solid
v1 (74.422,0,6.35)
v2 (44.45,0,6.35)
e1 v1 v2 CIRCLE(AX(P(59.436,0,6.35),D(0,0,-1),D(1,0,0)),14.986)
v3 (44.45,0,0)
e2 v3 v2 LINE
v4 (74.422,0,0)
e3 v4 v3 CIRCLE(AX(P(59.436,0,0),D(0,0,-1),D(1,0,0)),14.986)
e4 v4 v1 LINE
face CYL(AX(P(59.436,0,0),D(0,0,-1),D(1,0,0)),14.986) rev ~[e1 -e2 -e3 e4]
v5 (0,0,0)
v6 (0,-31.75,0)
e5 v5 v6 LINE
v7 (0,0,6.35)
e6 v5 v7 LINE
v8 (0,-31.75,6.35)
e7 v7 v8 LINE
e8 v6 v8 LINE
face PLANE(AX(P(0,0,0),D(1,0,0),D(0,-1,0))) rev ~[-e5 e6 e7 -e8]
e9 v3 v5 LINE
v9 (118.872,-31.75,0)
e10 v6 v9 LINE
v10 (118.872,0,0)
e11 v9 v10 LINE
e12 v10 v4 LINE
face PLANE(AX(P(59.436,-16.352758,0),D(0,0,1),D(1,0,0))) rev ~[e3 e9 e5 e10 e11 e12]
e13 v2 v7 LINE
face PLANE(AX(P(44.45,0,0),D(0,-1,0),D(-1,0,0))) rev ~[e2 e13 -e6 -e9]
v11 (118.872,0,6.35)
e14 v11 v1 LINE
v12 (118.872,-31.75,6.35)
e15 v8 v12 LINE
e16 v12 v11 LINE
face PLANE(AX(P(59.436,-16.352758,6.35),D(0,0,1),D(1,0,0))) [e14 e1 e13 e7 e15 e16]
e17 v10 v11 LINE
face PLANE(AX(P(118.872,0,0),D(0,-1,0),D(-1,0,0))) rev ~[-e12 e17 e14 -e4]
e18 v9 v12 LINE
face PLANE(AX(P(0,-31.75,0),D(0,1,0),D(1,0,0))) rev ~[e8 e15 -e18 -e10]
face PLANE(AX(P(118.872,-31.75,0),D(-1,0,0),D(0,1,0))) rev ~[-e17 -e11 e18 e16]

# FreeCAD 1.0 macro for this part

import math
import FreeCAD as App
import Part
import Sketcher
Q = App.Units.Quantity

doc = App.newDocument("Part")
body = doc.addObject("PartDesign::Body", "Body")

# Sketch on XY plane
sketch1 = body.newObject("Sketcher::SketchObject", "Sketch")
sketch1.AttachmentSupport = (doc.getObject("XY_Plane"), [""])
sketch1.MapMode = "FlatFace"
sketch1.addGeometry(Part.LineSegment(App.Vector(44.45, 0, 0), App.Vector(0, 0, 0)), False)
sketch1.addGeometry(Part.LineSegment(App.Vector(0, 0, 0), App.Vector(0, -31.75, 0)), False)
sketch1.addGeometry(Part.LineSegment(App.Vector(0, -31.75, 0), App.Vector(118.872, -31.75, 0)), False)
sketch1.addGeometry(Part.LineSegment(App.Vector(118.872, -31.75, 0), App.Vector(118.872, 0, 0)), False)
sketch1.addGeometry(Part.LineSegment(App.Vector(118.872, 0, 0), App.Vector(74.422, 0, 0)), False)
sketch1.addGeometry(Part.ArcOfCircle(Part.Circle(App.Vector(59.436, 0, 0), App.Vector(0, 0, 1), 14.986), math.radians(180), math.radians(360)), False)
sketch1.addConstraint(Sketcher.Constraint("Coincident", 0, 2, 1, 1))
sketch1.addConstraint(Sketcher.Constraint("Coincident", 1, 2, 2, 1))
sketch1.addConstraint(Sketcher.Constraint("Coincident", 2, 2, 3, 1))
sketch1.addConstraint(Sketcher.Constraint("Coincident", 3, 2, 4, 1))
sketch1.addConstraint(Sketcher.Constraint("Coincident", 4, 2, 5, 2))
sketch1.addConstraint(Sketcher.Constraint("Coincident", 5, 1, 0, 1))
sketch1.addConstraint(Sketcher.Constraint("Horizontal", 0))
sketch1.addConstraint(Sketcher.Constraint("Vertical", 1))
sketch1.addConstraint(Sketcher.Constraint("Horizontal", 2))
sketch1.addConstraint(Sketcher.Constraint("Vertical", 3))
sketch1.addConstraint(Sketcher.Constraint("Horizontal", 4))
sketch1.addConstraint(Sketcher.Constraint("Coincident", 0, 2, -1, 1))
sketch1.addConstraint(Sketcher.Constraint("PointOnObject", 5, 3, -1))
sketch1.addConstraint(Sketcher.Constraint("PointOnObject", 3, 2, -1))
sketch1.addConstraint(Sketcher.Constraint("Equal", 0, 4))
sketch1.addConstraint(Sketcher.Constraint("Radius", 5, Q("0.59 in")))
sketch1.addConstraint(Sketcher.Constraint("DistanceX", 0, 2, 0, 1, Q("1.75 in")))
sketch1.addConstraint(Sketcher.Constraint("DistanceY", 1, 2, 1, 1, Q("1.25 in")))
pad1 = body.newObject("PartDesign::Pad", "Pad")
pad1.Profile = sketch1
pad1.Length = Q("0.25 in")

doc.recompute()
